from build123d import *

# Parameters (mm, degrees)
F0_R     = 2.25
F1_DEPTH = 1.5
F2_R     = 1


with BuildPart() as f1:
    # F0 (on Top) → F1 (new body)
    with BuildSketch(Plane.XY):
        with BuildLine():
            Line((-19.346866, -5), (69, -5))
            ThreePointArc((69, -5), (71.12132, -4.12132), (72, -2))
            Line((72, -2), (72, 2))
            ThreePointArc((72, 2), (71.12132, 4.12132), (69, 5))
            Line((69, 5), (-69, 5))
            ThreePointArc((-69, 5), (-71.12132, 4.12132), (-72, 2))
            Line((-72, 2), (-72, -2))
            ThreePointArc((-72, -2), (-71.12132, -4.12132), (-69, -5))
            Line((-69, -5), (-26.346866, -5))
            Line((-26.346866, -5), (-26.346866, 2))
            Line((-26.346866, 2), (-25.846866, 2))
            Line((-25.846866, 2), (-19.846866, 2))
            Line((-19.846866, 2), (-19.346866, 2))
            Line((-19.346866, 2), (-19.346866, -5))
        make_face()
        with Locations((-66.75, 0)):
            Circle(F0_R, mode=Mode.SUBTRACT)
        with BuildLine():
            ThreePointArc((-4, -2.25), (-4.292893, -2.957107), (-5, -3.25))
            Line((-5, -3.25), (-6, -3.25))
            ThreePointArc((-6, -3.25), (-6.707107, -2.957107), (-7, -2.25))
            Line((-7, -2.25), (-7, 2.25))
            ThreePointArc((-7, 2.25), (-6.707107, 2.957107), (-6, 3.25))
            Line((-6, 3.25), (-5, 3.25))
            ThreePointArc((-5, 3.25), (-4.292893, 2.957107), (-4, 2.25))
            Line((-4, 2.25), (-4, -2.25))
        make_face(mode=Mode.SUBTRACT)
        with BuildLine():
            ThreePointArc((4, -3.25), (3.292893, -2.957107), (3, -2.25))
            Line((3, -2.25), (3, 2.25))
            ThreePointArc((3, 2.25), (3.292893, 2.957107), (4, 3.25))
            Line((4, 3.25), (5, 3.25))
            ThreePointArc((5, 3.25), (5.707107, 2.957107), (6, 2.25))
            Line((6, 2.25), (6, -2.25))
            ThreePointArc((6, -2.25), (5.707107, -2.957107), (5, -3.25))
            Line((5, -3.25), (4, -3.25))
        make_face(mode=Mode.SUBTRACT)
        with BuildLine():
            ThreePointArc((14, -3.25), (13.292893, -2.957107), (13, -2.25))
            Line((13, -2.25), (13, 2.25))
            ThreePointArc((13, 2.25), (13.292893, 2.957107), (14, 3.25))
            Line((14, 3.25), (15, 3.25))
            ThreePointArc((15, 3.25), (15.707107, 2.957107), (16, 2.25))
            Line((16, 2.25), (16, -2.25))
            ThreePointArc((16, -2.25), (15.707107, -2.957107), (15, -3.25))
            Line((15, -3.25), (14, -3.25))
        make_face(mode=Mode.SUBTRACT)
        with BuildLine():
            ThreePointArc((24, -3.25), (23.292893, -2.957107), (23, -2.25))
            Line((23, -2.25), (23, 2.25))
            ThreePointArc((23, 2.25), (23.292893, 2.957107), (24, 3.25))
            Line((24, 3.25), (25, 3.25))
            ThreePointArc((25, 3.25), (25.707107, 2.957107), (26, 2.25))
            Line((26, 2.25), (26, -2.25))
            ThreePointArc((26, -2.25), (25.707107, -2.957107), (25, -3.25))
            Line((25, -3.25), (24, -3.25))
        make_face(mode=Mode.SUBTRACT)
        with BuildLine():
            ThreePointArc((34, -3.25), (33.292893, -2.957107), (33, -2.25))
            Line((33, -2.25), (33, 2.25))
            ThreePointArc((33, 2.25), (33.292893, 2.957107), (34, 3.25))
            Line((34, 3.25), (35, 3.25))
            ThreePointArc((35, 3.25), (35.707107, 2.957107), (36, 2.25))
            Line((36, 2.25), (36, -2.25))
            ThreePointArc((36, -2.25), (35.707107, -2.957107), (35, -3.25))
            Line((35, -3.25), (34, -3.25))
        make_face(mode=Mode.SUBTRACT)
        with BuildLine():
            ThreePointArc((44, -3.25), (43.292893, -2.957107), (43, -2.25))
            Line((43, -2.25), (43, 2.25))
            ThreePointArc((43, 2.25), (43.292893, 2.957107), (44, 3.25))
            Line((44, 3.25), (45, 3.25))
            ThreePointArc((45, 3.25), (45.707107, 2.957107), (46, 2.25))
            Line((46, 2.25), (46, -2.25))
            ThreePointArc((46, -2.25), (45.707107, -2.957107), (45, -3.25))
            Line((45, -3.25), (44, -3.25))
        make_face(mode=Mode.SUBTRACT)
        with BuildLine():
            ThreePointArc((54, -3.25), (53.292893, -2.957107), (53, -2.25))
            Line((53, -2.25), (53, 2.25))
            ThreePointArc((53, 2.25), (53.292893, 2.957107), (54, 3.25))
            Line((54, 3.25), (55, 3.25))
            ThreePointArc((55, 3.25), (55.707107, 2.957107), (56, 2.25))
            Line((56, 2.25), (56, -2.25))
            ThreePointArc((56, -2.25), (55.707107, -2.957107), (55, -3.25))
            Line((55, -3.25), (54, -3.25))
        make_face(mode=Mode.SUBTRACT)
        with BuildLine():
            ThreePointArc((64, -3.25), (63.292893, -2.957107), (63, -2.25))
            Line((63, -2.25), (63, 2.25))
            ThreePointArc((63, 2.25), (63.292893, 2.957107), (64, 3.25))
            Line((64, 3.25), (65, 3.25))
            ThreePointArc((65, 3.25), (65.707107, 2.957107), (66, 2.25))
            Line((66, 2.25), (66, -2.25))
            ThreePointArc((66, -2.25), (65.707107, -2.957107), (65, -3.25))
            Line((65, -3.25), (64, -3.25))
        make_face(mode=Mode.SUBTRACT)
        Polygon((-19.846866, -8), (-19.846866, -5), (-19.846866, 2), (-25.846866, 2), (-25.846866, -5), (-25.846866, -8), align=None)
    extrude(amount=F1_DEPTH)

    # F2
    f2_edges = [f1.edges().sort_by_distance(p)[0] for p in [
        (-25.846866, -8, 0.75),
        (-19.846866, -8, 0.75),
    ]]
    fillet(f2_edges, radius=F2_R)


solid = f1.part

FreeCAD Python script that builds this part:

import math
import FreeCAD as App
import Part
import Sketcher
Q = App.Units.Quantity


def edges_at(feature, points):
    """Names of the edges that pass closest to the given points."""
    edges = feature.Shape.Edges
    near = lambda p: min(range(len(edges)), key=lambda i: edges[i].distToShape(Part.Vertex(*p))[0])
    return sorted({f"Edge{near(p) + 1}" for p in points})

doc = App.newDocument("Part")
body = doc.addObject("PartDesign::Body", "Body")

sketch1 = body.newObject("Sketcher::SketchObject", "Sketch")
sketch1.AttachmentSupport = (doc.getObject("XY_Plane"), [""])
sketch1.MapMode = "FlatFace"
sketch1.addGeometry([
    Part.LineSegment(App.Vector(-19.3, 2, 0), App.Vector(-19.3, -5, 0)),
    Part.LineSegment(App.Vector(-19.3, -5, 0), App.Vector(69, -5, 0)),
    Part.ArcOfCircle(Part.Circle(App.Vector(69, -2, 0), App.Vector(0, 0, 1), 3), math.radians(-90), math.radians(0)),
    Part.LineSegment(App.Vector(72, -2, 0), App.Vector(72, 2, 0)),
    Part.ArcOfCircle(Part.Circle(App.Vector(69, 2, 0), App.Vector(0, 0, 1), 3), math.radians(0), math.radians(90)),
    Part.LineSegment(App.Vector(69, 5, 0), App.Vector(-69, 5, 0)),
    Part.ArcOfCircle(Part.Circle(App.Vector(-69, 2, 0), App.Vector(0, 0, 1), 3), math.radians(90), math.radians(180)),
    Part.LineSegment(App.Vector(-72, 2, 0), App.Vector(-72, -2, 0)),
    Part.ArcOfCircle(Part.Circle(App.Vector(-69, -2, 0), App.Vector(0, 0, 1), 3), math.radians(-180), math.radians(-90)),
    Part.LineSegment(App.Vector(-69, -5, 0), App.Vector(-26.3, -5, 0)),
    Part.LineSegment(App.Vector(-26.3, -5, 0), App.Vector(-26.3, 2, 0)),
    Part.LineSegment(App.Vector(-26.3, 2, 0), App.Vector(-25.8, 2, 0)),
    Part.LineSegment(App.Vector(-25.8, 2, 0), App.Vector(-25.8, -8, 0)),
    Part.LineSegment(App.Vector(-25.8, -8, 0), App.Vector(-19.8, -8, 0)),
    Part.LineSegment(App.Vector(-19.8, -8, 0), App.Vector(-19.8, 2, 0)),
    Part.LineSegment(App.Vector(-19.8, 2, 0), App.Vector(-19.3, 2, 0)),
    Part.Circle(App.Vector(-66.8, 0, 0), App.Vector(0, 0, 1), 2.2),
    Part.LineSegment(App.Vector(-4, 2.2, 0), App.Vector(-4, -2.2, 0)),
    Part.ArcOfCircle(Part.Circle(App.Vector(-5, -2.3, 0), App.Vector(0, 0, 1), 1), math.radians(-90), math.radians(0)),
    Part.LineSegment(App.Vector(-5, -3.2, 0), App.Vector(-6, -3.2, 0)),
    Part.ArcOfCircle(Part.Circle(App.Vector(-6, -2.3, 0), App.Vector(0, 0, 1), 1), math.radians(180), math.radians(270)),
    Part.LineSegment(App.Vector(-7, -2.2, 0), App.Vector(-7, 2.2, 0)),
    Part.ArcOfCircle(Part.Circle(App.Vector(-6, 2.3, 0), App.Vector(0, 0, 1), 1), math.radians(90), math.radians(180)),
    Part.LineSegment(App.Vector(-6, 3.2, 0), App.Vector(-5, 3.2, 0)),
    Part.ArcOfCircle(Part.Circle(App.Vector(-5, 2.3, 0), App.Vector(0, 0, 1), 1), math.radians(0), math.radians(90)),
    Part.LineSegment(App.Vector(5, -3.2, 0), App.Vector(4, -3.2, 0)),
    Part.ArcOfCircle(Part.Circle(App.Vector(4, -2.3, 0), App.Vector(0, 0, 1), 1), math.radians(180), math.radians(270)),
    Part.LineSegment(App.Vector(3, -2.2, 0), App.Vector(3, 2.2, 0)),
    Part.ArcOfCircle(Part.Circle(App.Vector(4, 2.3, 0), App.Vector(0, 0, 1), 1), math.radians(90), math.radians(180)),
    Part.LineSegment(App.Vector(4, 3.2, 0), App.Vector(5, 3.2, 0)),
    Part.ArcOfCircle(Part.Circle(App.Vector(5, 2.3, 0), App.Vector(0, 0, 1), 1), math.radians(0), math.radians(90)),
    Part.LineSegment(App.Vector(6, 2.2, 0), App.Vector(6, -2.2, 0)),
    Part.ArcOfCircle(Part.Circle(App.Vector(5, -2.3, 0), App.Vector(0, 0, 1), 1), math.radians(-90), math.radians(0)),
    Part.LineSegment(App.Vector(15, -3.2, 0), App.Vector(14, -3.2, 0)),
    Part.ArcOfCircle(Part.Circle(App.Vector(14, -2.3, 0), App.Vector(0, 0, 1), 1), math.radians(180), math.radians(270)),
    Part.LineSegment(App.Vector(13, -2.2, 0), App.Vector(13, 2.2, 0)),
    Part.ArcOfCircle(Part.Circle(App.Vector(14, 2.3, 0), App.Vector(0, 0, 1), 1), math.radians(90), math.radians(180)),
    Part.LineSegment(App.Vector(14, 3.2, 0), App.Vector(15, 3.2, 0)),
    Part.ArcOfCircle(Part.Circle(App.Vector(15, 2.3, 0), App.Vector(0, 0, 1), 1), math.radians(0), math.radians(90)),
    Part.LineSegment(App.Vector(16, 2.2, 0), App.Vector(16, -2.2, 0)),
    Part.ArcOfCircle(Part.Circle(App.Vector(15, -2.3, 0), App.Vector(0, 0, 1), 1), math.radians(-90), math.radians(0)),
    Part.LineSegment(App.Vector(25, -3.2, 0), App.Vector(24, -3.2, 0)),
    Part.ArcOfCircle(Part.Circle(App.Vector(24, -2.3, 0), App.Vector(0, 0, 1), 1), math.radians(180), math.radians(270)),
    Part.LineSegment(App.Vector(23, -2.2, 0), App.Vector(23, 2.2, 0)),
    Part.ArcOfCircle(Part.Circle(App.Vector(24, 2.3, 0), App.Vector(0, 0, 1), 1), math.radians(90), math.radians(180)),
    Part.LineSegment(App.Vector(24, 3.2, 0), App.Vector(25, 3.2, 0)),
    Part.ArcOfCircle(Part.Circle(App.Vector(25, 2.3, 0), App.Vector(0, 0, 1), 1), math.radians(0), math.radians(90)),
    Part.LineSegment(App.Vector(26, 2.2, 0), App.Vector(26, -2.2, 0)),
    Part.ArcOfCircle(Part.Circle(App.Vector(25, -2.3, 0), App.Vector(0, 0, 1), 1), math.radians(-90), math.radians(0)),
    Part.LineSegment(App.Vector(35, -3.2, 0), App.Vector(34, -3.2, 0)),
    Part.ArcOfCircle(Part.Circle(App.Vector(34, -2.3, 0), App.Vector(0, 0, 1), 1), math.radians(180), math.radians(270)),
    Part.LineSegment(App.Vector(33, -2.2, 0), App.Vector(33, 2.2, 0)),
    Part.ArcOfCircle(Part.Circle(App.Vector(34, 2.3, 0), App.Vector(0, 0, 1), 1), math.radians(90), math.radians(180)),
    Part.LineSegment(App.Vector(34, 3.2, 0), App.Vector(35, 3.2, 0)),
    Part.ArcOfCircle(Part.Circle(App.Vector(35, 2.3, 0), App.Vector(0, 0, 1), 1), math.radians(0), math.radians(90)),
    Part.LineSegment(App.Vector(36, 2.2, 0), App.Vector(36, -2.2, 0)),
    Part.ArcOfCircle(Part.Circle(App.Vector(35, -2.3, 0), App.Vector(0, 0, 1), 1), math.radians(-90), math.radians(0)),
    Part.LineSegment(App.Vector(45, -3.2, 0), App.Vector(44, -3.2, 0)),
    Part.ArcOfCircle(Part.Circle(App.Vector(44, -2.3, 0), App.Vector(0, 0, 1), 1), math.radians(180), math.radians(270)),
    Part.LineSegment(App.Vector(43, -2.2, 0), App.Vector(43, 2.2, 0)),
    Part.ArcOfCircle(Part.Circle(App.Vector(44, 2.3, 0), App.Vector(0, 0, 1), 1), math.radians(90), math.radians(180)),
    Part.LineSegment(App.Vector(44, 3.2, 0), App.Vector(45, 3.2, 0)),
    Part.ArcOfCircle(Part.Circle(App.Vector(45, 2.3, 0), App.Vector(0, 0, 1), 1), math.radians(0), math.radians(90)),
    Part.LineSegment(App.Vector(46, 2.2, 0), App.Vector(46, -2.2, 0)),
    Part.ArcOfCircle(Part.Circle(App.Vector(45, -2.3, 0), App.Vector(0, 0, 1), 1), math.radians(-90), math.radians(0)),
    Part.LineSegment(App.Vector(55, -3.2, 0), App.Vector(54, -3.2, 0)),
    Part.ArcOfCircle(Part.Circle(App.Vector(54, -2.3, 0), App.Vector(0, 0, 1), 1), math.radians(180), math.radians(270)),
    Part.LineSegment(App.Vector(53, -2.2, 0), App.Vector(53, 2.2, 0)),
    Part.ArcOfCircle(Part.Circle(App.Vector(54, 2.3, 0), App.Vector(0, 0, 1), 1), math.radians(90), math.radians(180)),
    Part.LineSegment(App.Vector(54, 3.2, 0), App.Vector(55, 3.2, 0)),
    Part.ArcOfCircle(Part.Circle(App.Vector(55, 2.3, 0), App.Vector(0, 0, 1), 1), math.radians(0), math.radians(90)),
    Part.LineSegment(App.Vector(56, 2.2, 0), App.Vector(56, -2.2, 0)),
    Part.ArcOfCircle(Part.Circle(App.Vector(55, -2.3, 0), App.Vector(0, 0, 1), 1), math.radians(-90), math.radians(0)),
    Part.LineSegment(App.Vector(65, -3.2, 0), App.Vector(64, -3.2, 0)),
    Part.ArcOfCircle(Part.Circle(App.Vector(64, -2.3, 0), App.Vector(0, 0, 1), 1), math.radians(180), math.radians(270)),
    Part.LineSegment(App.Vector(63, -2.2, 0), App.Vector(63, 2.2, 0)),
    Part.ArcOfCircle(Part.Circle(App.Vector(64, 2.3, 0), App.Vector(0, 0, 1), 1), math.radians(90), math.radians(180)),
    Part.LineSegment(App.Vector(64, 3.2, 0), App.Vector(65, 3.2, 0)),
    Part.ArcOfCircle(Part.Circle(App.Vector(65, 2.3, 0), App.Vector(0, 0, 1), 1), math.radians(0), math.radians(90)),
    Part.LineSegment(App.Vector(66, 2.2, 0), App.Vector(66, -2.2, 0)),
    Part.ArcOfCircle(Part.Circle(App.Vector(65, -2.3, 0), App.Vector(0, 0, 1), 1), math.radians(-90), math.radians(0)),
], False)
sketch1.addConstraint([
    Sketcher.Constraint("Coincident", 0, 2, 1, 1),
    Sketcher.Constraint("Tangent", 1, 2, 2, 1),
    Sketcher.Constraint("Tangent", 2, 2, 3, 1),
    Sketcher.Constraint("Tangent", 3, 2, 4, 1),
    Sketcher.Constraint("Tangent", 4, 2, 5, 1),
    Sketcher.Constraint("Tangent", 5, 2, 6, 1),
    Sketcher.Constraint("Tangent", 6, 2, 7, 1),
    Sketcher.Constraint("Tangent", 7, 2, 8, 1),
    Sketcher.Constraint("Tangent", 8, 2, 9, 1),
    Sketcher.Constraint("Coincident", 9, 2, 10, 1),
    Sketcher.Constraint("Coincident", 10, 2, 11, 1),
    Sketcher.Constraint("Coincident", 11, 2, 12, 1),
    Sketcher.Constraint("Coincident", 12, 2, 13, 1),
    Sketcher.Constraint("Coincident", 13, 2, 14, 1),
    Sketcher.Constraint("Coincident", 14, 2, 15, 1),
    Sketcher.Constraint("Coincident", 15, 2, 0, 1),
    Sketcher.Constraint("Tangent", 17, 2, 18, 2),
    Sketcher.Constraint("Tangent", 18, 1, 19, 1),
    Sketcher.Constraint("Tangent", 19, 2, 20, 2),
    Sketcher.Constraint("Tangent", 20, 1, 21, 1),
    Sketcher.Constraint("Tangent", 21, 2, 22, 2),
    Sketcher.Constraint("Tangent", 22, 1, 23, 1),
    Sketcher.Constraint("Tangent", 23, 2, 24, 2),
    Sketcher.Constraint("Tangent", 24, 1, 17, 1),
    Sketcher.Constraint("Tangent", 25, 2, 26, 2),
    Sketcher.Constraint("Tangent", 26, 1, 27, 1),
    Sketcher.Constraint("Tangent", 27, 2, 28, 2),
    Sketcher.Constraint("Tangent", 28, 1, 29, 1),
    Sketcher.Constraint("Tangent", 29, 2, 30, 2),
    Sketcher.Constraint("Tangent", 30, 1, 31, 1),
    Sketcher.Constraint("Tangent", 31, 2, 32, 2),
    Sketcher.Constraint("Tangent", 32, 1, 25, 1),
    Sketcher.Constraint("Tangent", 33, 2, 34, 2),
    Sketcher.Constraint("Tangent", 34, 1, 35, 1),
    Sketcher.Constraint("Tangent", 35, 2, 36, 2),
    Sketcher.Constraint("Tangent", 36, 1, 37, 1),
    Sketcher.Constraint("Tangent", 37, 2, 38, 2),
    Sketcher.Constraint("Tangent", 38, 1, 39, 1),
    Sketcher.Constraint("Tangent", 39, 2, 40, 2),
    Sketcher.Constraint("Tangent", 40, 1, 33, 1),
    Sketcher.Constraint("Tangent", 41, 2, 42, 2),
    Sketcher.Constraint("Tangent", 42, 1, 43, 1),
    Sketcher.Constraint("Tangent", 43, 2, 44, 2),
    Sketcher.Constraint("Tangent", 44, 1, 45, 1),
    Sketcher.Constraint("Tangent", 45, 2, 46, 2),
    Sketcher.Constraint("Tangent", 46, 1, 47, 1),
    Sketcher.Constraint("Tangent", 47, 2, 48, 2),
    Sketcher.Constraint("Tangent", 48, 1, 41, 1),
    Sketcher.Constraint("Tangent", 49, 2, 50, 2),
    Sketcher.Constraint("Tangent", 50, 1, 51, 1),
    Sketcher.Constraint("Tangent", 51, 2, 52, 2),
    Sketcher.Constraint("Tangent", 52, 1, 53, 1),
    Sketcher.Constraint("Tangent", 53, 2, 54, 2),
    Sketcher.Constraint("Tangent", 54, 1, 55, 1),
    Sketcher.Constraint("Tangent", 55, 2, 56, 2),
    Sketcher.Constraint("Tangent", 56, 1, 49, 1),
    Sketcher.Constraint("Tangent", 57, 2, 58, 2),
    Sketcher.Constraint("Tangent", 58, 1, 59, 1),
    Sketcher.Constraint("Tangent", 59, 2, 60, 2),
    Sketcher.Constraint("Tangent", 60, 1, 61, 1),
    Sketcher.Constraint("Tangent", 61, 2, 62, 2),
    Sketcher.Constraint("Tangent", 62, 1, 63, 1),
    Sketcher.Constraint("Tangent", 63, 2, 64, 2),
    Sketcher.Constraint("Tangent", 64, 1, 57, 1),
    Sketcher.Constraint("Tangent", 65, 2, 66, 2),
    Sketcher.Constraint("Tangent", 66, 1, 67, 1),
    Sketcher.Constraint("Tangent", 67, 2, 68, 2),
    Sketcher.Constraint("Tangent", 68, 1, 69, 1),
    Sketcher.Constraint("Tangent", 69, 2, 70, 2),
    Sketcher.Constraint("Tangent", 70, 1, 71, 1),
    Sketcher.Constraint("Tangent", 71, 2, 72, 2),
    Sketcher.Constraint("Tangent", 72, 1, 65, 1),
    Sketcher.Constraint("Tangent", 73, 2, 74, 2),
    Sketcher.Constraint("Tangent", 74, 1, 75, 1),
    Sketcher.Constraint("Tangent", 75, 2, 76, 2),
    Sketcher.Constraint("Tangent", 76, 1, 77, 1),
    Sketcher.Constraint("Tangent", 77, 2, 78, 2),
    Sketcher.Constraint("Tangent", 78, 1, 79, 1),
    Sketcher.Constraint("Tangent", 79, 2, 80, 2),
    Sketcher.Constraint("Tangent", 80, 1, 73, 1),
    Sketcher.Constraint("Vertical", 0),
    Sketcher.Constraint("Horizontal", 1),
    Sketcher.Constraint("Vertical", 3),
    Sketcher.Constraint("Horizontal", 5),
    Sketcher.Constraint("Vertical", 7),
    Sketcher.Constraint("Horizontal", 9),
    Sketcher.Constraint("Vertical", 10),
    Sketcher.Constraint("Horizontal", 11),
    Sketcher.Constraint("Vertical", 12),
    Sketcher.Constraint("Horizontal", 13),
    Sketcher.Constraint("Vertical", 14),
    Sketcher.Constraint("Horizontal", 15),
    Sketcher.Constraint("Vertical", 17),
    Sketcher.Constraint("Horizontal", 19),
    Sketcher.Constraint("Vertical", 21),
    Sketcher.Constraint("Horizontal", 23),
    Sketcher.Constraint("Horizontal", 25),
    Sketcher.Constraint("Vertical", 27),
    Sketcher.Constraint("Horizontal", 29),
    Sketcher.Constraint("Vertical", 31),
    Sketcher.Constraint("Horizontal", 33),
    Sketcher.Constraint("Vertical", 35),
    Sketcher.Constraint("Horizontal", 37),
    Sketcher.Constraint("Vertical", 39),
    Sketcher.Constraint("Horizontal", 41),
    Sketcher.Constraint("Vertical", 43),
    Sketcher.Constraint("Horizontal", 45),
    Sketcher.Constraint("Vertical", 47),
    Sketcher.Constraint("Horizontal", 49),
    Sketcher.Constraint("Vertical", 51),
    Sketcher.Constraint("Horizontal", 53),
    Sketcher.Constraint("Vertical", 55),
    Sketcher.Constraint("Horizontal", 57),
    Sketcher.Constraint("Vertical", 59),
    Sketcher.Constraint("Horizontal", 61),
    Sketcher.Constraint("Vertical", 63),
    Sketcher.Constraint("Horizontal", 65),
    Sketcher.Constraint("Vertical", 67),
    Sketcher.Constraint("Horizontal", 69),
    Sketcher.Constraint("Vertical", 71),
    Sketcher.Constraint("Horizontal", 73),
    Sketcher.Constraint("Vertical", 75),
    Sketcher.Constraint("Horizontal", 77),
    Sketcher.Constraint("Vertical", 79),
    Sketcher.Constraint("Equal", 2, 4),
    Sketcher.Constraint("Equal", 4, 6),
    Sketcher.Constraint("Equal", 6, 8),
    Sketcher.Constraint("Equal", 18, 20),
    Sketcher.Constraint("Equal", 20, 22),
    Sketcher.Constraint("Equal", 22, 24),
    Sketcher.Constraint("Equal", 24, 26),
    Sketcher.Constraint("Equal", 26, 28),
    Sketcher.Constraint("Equal", 28, 30),
    Sketcher.Constraint("Equal", 30, 32),
    Sketcher.Constraint("Equal", 32, 34),
    Sketcher.Constraint("Equal", 34, 36),
    Sketcher.Constraint("Equal", 36, 38),
    Sketcher.Constraint("Equal", 38, 40),
    Sketcher.Constraint("Equal", 40, 42),
    Sketcher.Constraint("Equal", 42, 44),
    Sketcher.Constraint("Equal", 44, 46),
    Sketcher.Constraint("Equal", 46, 48),
    Sketcher.Constraint("Equal", 48, 50),
    Sketcher.Constraint("Equal", 50, 52),
    Sketcher.Constraint("Equal", 52, 54),
    Sketcher.Constraint("Equal", 54, 56),
    Sketcher.Constraint("Equal", 56, 58),
    Sketcher.Constraint("Equal", 58, 60),
    Sketcher.Constraint("Equal", 60, 62),
    Sketcher.Constraint("Equal", 62, 64),
    Sketcher.Constraint("Equal", 64, 66),
    Sketcher.Constraint("Equal", 66, 68),
    Sketcher.Constraint("Equal", 68, 70),
    Sketcher.Constraint("Equal", 70, 72),
    Sketcher.Constraint("Equal", 72, 74),
    Sketcher.Constraint("Equal", 74, 76),
    Sketcher.Constraint("Equal", 76, 78),
    Sketcher.Constraint("Equal", 78, 80),
    Sketcher.Constraint("Symmetric", 2, 3, 6, 3, -1, 1),
    Sketcher.Constraint("Symmetric", 18, 3, 30, 3, -1, 1),
    Sketcher.Constraint("PointOnObject", 16, 3, -1),
    Sketcher.Constraint("Horizontal", 2, 3, 8, 3),
    Sketcher.Constraint("Horizontal", 20, 3, 26, 3),
    Sketcher.Constraint("Horizontal", 24, 3, 28, 3),
    Sketcher.Constraint("Horizontal", 32, 3, 34, 3),
    Sketcher.Constraint("Horizontal", 30, 3, 36, 3),
    Sketcher.Constraint("Horizontal", 40, 3, 42, 3),
    Sketcher.Constraint("Horizontal", 38, 3, 44, 3),
    Sketcher.Constraint("Horizontal", 48, 3, 50, 3),
    Sketcher.Constraint("Horizontal", 46, 3, 52, 3),
    Sketcher.Constraint("Horizontal", 56, 3, 58, 3),
    Sketcher.Constraint("Horizontal", 54, 3, 60, 3),
    Sketcher.Constraint("Horizontal", 64, 3, 66, 3),
    Sketcher.Constraint("Horizontal", 62, 3, 68, 3),
    Sketcher.Constraint("Horizontal", 72, 3, 74, 3),
    Sketcher.Constraint("Horizontal", 70, 3, 76, 3),
    Sketcher.Constraint("Horizontal", 6, 2, 10, 2),
    Sketcher.Constraint("Horizontal", 11, 2, 14, 2),
    Sketcher.Constraint("Equal", 11, 15),
    Sketcher.Constraint("Equal", 23, 25),
    Sketcher.Constraint("Equal", 29, 33),
    Sketcher.Constraint("Equal", 37, 41),
    Sketcher.Constraint("Equal", 45, 49),
    Sketcher.Constraint("Equal", 53, 57),
    Sketcher.Constraint("Equal", 61, 65),
    Sketcher.Constraint("Equal", 69, 73),
    Sketcher.Constraint("Radius", 2, Q("3.000001 mm")),
    Sketcher.Constraint("Radius", 18, Q("0.999999 mm")),
    Sketcher.Constraint("Diameter", 16, Q("4.5 mm")),
    Sketcher.Constraint("DistanceX", 5, 2, 5, 1, Q("138 mm")),
    Sketcher.Constraint("DistanceX", 13, 1, 13, 2, Q("6 mm")),
    Sketcher.Constraint("DistanceX", 19, 2, 19, 1, Q("1 mm")),
    Sketcher.Constraint("DistanceY", 0, 2, 0, 1, Q("7 mm")),
    Sketcher.Constraint("DistanceY", 12, 2, 12, 1, Q("10 mm")),
    Sketcher.Constraint("DistanceX", 11, 1, 11, 2, Q("0.5 mm")),
    Sketcher.Constraint("DistanceY", 17, 2, 17, 1, Q("4.5 mm")),
    Sketcher.Constraint("DistanceX", 18, 3, -1, 1, Q("4.999999 mm")),
    Sketcher.Constraint("DistanceX", -1, 1, 34, 3, Q("13.999999 mm")),
    Sketcher.Constraint("DistanceX", -1, 1, 42, 3, Q("23.999999 mm")),
    Sketcher.Constraint("DistanceX", -1, 1, 50, 3, Q("33.999999 mm")),
    Sketcher.Constraint("DistanceX", -1, 1, 58, 3, Q("43.999999 mm")),
    Sketcher.Constraint("DistanceX", -1, 1, 66, 3, Q("53.999999 mm")),
    Sketcher.Constraint("DistanceX", -1, 1, 74, 3, Q("63.999999 mm")),
    Sketcher.Constraint("DistanceX", 16, 3, -1, 1, Q("66.75 mm")),
    Sketcher.Constraint("DistanceX", 1, 1, 1, 2, Q("88.346866 mm")),
])
pad1 = body.newObject("PartDesign::Pad", "Pad")
pad1.Profile = sketch1
pad1.Length = 1.5
doc.recompute()

fillet = body.newObject("PartDesign::Fillet", "Fillet")
fillet.Base = (pad1, edges_at(pad1, [(-25.847, -8, 0.75), (-19.847, -8, 0.75)]))
fillet.Radius = 1

doc.recompute()
